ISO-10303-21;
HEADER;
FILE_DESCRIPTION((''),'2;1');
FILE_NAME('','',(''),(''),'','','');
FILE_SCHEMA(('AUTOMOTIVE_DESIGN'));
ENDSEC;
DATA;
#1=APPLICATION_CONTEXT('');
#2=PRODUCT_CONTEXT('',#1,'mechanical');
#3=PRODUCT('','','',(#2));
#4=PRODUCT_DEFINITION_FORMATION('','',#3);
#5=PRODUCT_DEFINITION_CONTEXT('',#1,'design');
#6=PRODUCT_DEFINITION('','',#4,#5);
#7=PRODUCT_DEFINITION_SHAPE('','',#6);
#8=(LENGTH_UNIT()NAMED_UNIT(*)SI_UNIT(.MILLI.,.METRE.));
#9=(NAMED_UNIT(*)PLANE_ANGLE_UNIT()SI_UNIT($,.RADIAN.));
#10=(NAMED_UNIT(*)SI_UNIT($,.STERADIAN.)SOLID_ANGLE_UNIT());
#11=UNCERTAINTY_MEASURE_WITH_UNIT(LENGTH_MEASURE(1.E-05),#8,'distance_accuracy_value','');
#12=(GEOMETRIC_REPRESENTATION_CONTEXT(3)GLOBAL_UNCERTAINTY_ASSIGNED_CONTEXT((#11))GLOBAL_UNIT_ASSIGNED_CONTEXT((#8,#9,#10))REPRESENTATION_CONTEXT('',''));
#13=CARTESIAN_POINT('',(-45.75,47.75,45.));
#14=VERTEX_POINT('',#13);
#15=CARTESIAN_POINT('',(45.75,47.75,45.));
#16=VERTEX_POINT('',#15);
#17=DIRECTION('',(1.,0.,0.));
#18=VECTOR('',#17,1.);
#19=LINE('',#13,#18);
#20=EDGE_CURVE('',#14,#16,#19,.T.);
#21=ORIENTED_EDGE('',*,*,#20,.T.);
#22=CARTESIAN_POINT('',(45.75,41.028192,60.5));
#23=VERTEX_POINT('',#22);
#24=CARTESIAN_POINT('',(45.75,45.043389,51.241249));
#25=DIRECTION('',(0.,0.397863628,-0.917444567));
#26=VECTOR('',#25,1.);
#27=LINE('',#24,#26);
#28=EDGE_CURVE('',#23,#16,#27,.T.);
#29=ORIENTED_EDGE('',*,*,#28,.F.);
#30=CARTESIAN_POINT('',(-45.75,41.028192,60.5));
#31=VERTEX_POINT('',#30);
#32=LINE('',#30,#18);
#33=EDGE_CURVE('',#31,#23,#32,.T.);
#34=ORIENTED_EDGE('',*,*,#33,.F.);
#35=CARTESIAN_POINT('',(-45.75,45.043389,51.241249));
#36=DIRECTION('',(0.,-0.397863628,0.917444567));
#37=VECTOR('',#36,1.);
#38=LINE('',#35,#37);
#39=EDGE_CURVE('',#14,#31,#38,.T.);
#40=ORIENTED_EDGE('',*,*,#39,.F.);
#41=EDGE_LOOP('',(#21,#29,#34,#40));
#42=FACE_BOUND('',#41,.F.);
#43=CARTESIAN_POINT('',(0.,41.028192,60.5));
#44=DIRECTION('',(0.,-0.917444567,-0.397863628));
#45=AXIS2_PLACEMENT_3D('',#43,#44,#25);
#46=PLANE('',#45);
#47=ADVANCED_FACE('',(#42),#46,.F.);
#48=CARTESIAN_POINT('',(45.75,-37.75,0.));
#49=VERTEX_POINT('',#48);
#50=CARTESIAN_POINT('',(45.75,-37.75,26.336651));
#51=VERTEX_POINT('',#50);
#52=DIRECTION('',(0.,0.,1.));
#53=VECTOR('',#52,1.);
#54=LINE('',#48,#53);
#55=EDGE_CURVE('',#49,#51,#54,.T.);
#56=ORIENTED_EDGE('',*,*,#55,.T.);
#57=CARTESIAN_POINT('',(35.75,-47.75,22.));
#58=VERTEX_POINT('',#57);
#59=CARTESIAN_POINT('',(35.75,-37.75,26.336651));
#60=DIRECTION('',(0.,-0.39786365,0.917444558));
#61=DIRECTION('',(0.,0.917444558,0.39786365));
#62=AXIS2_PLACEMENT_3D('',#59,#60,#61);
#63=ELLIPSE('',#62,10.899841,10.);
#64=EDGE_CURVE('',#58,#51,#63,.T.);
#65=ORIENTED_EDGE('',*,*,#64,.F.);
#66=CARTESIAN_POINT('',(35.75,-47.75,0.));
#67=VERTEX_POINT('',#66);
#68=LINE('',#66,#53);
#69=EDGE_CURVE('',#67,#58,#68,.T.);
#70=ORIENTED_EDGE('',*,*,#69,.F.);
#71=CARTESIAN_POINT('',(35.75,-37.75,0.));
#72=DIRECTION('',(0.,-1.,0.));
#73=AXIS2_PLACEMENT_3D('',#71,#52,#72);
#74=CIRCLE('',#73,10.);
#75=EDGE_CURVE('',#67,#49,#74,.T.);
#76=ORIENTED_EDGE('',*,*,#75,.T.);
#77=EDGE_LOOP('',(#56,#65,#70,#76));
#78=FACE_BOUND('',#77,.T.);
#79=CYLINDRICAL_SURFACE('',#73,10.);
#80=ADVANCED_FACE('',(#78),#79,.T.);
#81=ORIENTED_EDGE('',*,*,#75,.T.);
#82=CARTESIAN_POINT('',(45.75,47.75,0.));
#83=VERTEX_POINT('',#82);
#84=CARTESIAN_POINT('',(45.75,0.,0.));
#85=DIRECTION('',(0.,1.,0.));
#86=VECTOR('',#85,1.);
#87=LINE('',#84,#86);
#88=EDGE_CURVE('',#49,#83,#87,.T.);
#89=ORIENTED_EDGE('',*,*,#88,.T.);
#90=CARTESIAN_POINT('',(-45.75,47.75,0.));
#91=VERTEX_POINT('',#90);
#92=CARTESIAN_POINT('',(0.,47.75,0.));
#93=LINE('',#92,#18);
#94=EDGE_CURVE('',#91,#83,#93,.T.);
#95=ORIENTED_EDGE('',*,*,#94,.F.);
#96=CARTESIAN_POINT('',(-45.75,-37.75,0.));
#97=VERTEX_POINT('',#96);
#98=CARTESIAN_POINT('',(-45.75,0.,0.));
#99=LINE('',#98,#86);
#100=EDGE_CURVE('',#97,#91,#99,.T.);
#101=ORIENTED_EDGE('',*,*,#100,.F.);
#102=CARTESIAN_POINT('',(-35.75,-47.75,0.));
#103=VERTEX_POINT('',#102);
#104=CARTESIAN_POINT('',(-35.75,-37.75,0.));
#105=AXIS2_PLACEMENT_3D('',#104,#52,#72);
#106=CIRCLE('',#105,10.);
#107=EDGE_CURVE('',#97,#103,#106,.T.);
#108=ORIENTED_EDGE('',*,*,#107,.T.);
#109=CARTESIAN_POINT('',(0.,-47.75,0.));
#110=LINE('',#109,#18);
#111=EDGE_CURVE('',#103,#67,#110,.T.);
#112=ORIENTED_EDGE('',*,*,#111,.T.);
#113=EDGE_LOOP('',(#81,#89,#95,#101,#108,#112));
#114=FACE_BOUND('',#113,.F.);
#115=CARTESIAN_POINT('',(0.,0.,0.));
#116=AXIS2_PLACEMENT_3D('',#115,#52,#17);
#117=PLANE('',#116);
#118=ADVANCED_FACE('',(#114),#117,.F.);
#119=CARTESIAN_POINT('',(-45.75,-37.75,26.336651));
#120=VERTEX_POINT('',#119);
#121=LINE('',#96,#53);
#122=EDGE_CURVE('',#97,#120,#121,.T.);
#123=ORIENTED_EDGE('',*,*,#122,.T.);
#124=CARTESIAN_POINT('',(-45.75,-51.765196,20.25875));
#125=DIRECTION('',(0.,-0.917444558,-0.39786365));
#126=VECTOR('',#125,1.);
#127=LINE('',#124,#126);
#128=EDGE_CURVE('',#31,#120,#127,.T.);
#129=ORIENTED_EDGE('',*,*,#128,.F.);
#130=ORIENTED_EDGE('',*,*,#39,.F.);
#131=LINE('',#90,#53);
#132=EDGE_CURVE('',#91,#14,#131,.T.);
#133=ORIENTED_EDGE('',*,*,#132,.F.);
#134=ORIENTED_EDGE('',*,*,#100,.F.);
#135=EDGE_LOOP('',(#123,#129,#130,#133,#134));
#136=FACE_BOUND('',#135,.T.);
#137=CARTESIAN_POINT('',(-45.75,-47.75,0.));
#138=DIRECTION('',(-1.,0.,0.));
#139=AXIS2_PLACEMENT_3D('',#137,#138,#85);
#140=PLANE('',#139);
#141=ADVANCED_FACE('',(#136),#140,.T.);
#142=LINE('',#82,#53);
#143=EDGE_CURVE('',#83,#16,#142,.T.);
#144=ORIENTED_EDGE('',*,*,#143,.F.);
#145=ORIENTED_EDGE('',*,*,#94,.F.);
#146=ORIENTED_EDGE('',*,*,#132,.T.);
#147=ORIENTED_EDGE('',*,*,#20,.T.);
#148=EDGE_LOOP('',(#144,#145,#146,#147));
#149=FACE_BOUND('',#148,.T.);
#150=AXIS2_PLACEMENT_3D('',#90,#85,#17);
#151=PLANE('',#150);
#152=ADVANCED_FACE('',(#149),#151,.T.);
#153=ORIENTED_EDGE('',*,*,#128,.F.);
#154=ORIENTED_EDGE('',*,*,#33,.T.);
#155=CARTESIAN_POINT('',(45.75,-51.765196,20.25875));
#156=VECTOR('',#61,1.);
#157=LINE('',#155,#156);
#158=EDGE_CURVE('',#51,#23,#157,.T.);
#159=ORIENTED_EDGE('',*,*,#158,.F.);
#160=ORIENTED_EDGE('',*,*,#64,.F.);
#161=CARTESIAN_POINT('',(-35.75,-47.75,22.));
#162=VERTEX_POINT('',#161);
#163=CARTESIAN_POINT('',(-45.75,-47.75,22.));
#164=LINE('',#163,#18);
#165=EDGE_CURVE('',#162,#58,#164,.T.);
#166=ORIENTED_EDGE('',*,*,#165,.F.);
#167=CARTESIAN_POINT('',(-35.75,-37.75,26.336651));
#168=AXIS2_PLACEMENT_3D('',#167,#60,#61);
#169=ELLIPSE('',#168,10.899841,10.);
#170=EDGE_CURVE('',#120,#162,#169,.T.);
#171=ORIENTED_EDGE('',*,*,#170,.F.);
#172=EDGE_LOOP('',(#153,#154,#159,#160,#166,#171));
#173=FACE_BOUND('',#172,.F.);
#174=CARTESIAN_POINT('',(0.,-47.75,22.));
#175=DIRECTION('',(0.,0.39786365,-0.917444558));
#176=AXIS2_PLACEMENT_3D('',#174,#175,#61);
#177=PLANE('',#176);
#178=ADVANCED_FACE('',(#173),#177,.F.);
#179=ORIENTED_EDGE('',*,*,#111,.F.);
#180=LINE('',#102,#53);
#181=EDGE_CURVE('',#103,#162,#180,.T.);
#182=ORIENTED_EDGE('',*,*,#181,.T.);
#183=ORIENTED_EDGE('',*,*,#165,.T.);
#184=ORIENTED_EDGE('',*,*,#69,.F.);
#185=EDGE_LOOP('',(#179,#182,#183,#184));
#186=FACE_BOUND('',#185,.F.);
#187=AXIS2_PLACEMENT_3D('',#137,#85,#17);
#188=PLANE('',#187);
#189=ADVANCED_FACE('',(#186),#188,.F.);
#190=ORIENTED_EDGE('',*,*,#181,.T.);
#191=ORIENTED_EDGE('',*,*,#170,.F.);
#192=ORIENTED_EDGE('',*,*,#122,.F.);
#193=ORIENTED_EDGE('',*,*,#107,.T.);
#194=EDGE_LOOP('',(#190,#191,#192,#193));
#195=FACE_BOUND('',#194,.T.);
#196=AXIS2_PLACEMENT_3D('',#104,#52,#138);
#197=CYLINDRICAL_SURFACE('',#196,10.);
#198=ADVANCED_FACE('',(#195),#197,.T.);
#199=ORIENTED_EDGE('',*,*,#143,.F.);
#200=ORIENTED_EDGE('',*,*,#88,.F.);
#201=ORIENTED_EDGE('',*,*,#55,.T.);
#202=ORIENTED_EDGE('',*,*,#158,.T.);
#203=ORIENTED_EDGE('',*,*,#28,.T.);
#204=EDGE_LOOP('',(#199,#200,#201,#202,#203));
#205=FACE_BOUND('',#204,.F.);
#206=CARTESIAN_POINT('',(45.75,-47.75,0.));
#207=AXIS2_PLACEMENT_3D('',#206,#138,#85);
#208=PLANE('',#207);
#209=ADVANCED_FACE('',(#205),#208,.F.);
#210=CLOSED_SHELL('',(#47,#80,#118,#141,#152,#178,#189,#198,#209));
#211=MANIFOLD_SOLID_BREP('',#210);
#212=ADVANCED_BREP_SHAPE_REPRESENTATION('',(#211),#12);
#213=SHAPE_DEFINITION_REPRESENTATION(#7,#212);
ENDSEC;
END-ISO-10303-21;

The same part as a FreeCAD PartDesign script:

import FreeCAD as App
import Part
import Sketcher

V = App.Vector
Q = App.Units.Quantity


def edges_at(feature, points):
    """Names of the edges that pass closest to the given points."""
    edges = feature.Shape.Edges
    near = lambda p: min(range(len(edges)), key=lambda i: edges[i].distToShape(Part.Vertex(*p))[0])
    return sorted({f"Edge{near(p) + 1}" for p in points})


def add_polygon(sketch, points):
    """Adds a closed chain of lines whose ends are joined by coincident constraints."""
    first, n = sketch.GeometryCount, len(points)
    for a, b in zip(points, points[1:] + points[:1]):
        sketch.addGeometry(Part.LineSegment(App.Vector(*a, 0), App.Vector(*b, 0)), False)
    for i in range(n):
        sketch.addConstraint(Sketcher.Constraint("Coincident", first + i, 2, first + (i + 1) % n, 1))

doc = App.newDocument("Part")
body = doc.addObject("PartDesign::Body", "Body")

# Sketch on XY plane
sketch1 = body.newObject("Sketcher::SketchObject", "Sketch")
sketch1.AttachmentSupport = (doc.getObject("XY_Plane"), [""])
sketch1.MapMode = "FlatFace"
add_polygon(sketch1, [(-46, 48), (-46, -48), (46, -48), (46, 48)])  # lines 0-3
sketch1.addConstraint([
    Sketcher.Constraint("Vertical", 0),
    Sketcher.Constraint("Horizontal", 1),
    Sketcher.Constraint("Vertical", 2),
    Sketcher.Constraint("Horizontal", 3),
    Sketcher.Constraint("Symmetric", 0, 2, 2, 2, -1, 1),
    Sketcher.Constraint("DistanceX", 1, 1, 1, 2, Q("91.5 mm")),
    Sketcher.Constraint("DistanceY", 0, 2, 0, 1, Q("95.5 mm")),
])
pad1 = body.newObject("PartDesign::Pad", "Pad")
pad1.Profile = sketch1
pad1.Length = 60.5

# Sketch on YZ plane
sketch2 = body.newObject("Sketcher::SketchObject", "Sketch001")
sketch2.AttachmentSupport = (doc.getObject("YZ_Plane"), [""])
sketch2.MapMode = "FlatFace"
add_polygon(sketch2, [(-48, 22), (41, 60), (48, 45), (58, 45), (58, 70), (-58, 70), (-58, 22)])  # lines 0-6
sketch2.addConstraint([
    Sketcher.Constraint("Horizontal", 2),
    Sketcher.Constraint("Vertical", 3),
    Sketcher.Constraint("Horizontal", 4),
    Sketcher.Constraint("Vertical", 5),
    Sketcher.Constraint("Horizontal", 6),
    Sketcher.Constraint("Perpendicular", 0, 1),
    Sketcher.Constraint("Equal", 2, 6),
    Sketcher.Constraint("DistanceX", 2, 1, 2, 2, Q("10 mm")),
    Sketcher.Constraint("DistanceX", 4, 2, 4, 1, Q("115.5 mm")),
    Sketcher.Constraint("DistanceY", 3, 1, 3, 2, Q("25.5 mm")),
    Sketcher.Constraint("DistanceY", 5, 2, 5, 1, Q("48.5 mm")),
    Sketcher.Constraint("DistanceY", -1, 1, 1, 2, Q("45 mm")),
    Sketcher.Constraint("DistanceY", 0, 2, 3, 2, Q("10 mm")),
    Sketcher.Constraint("DistanceX", -1, 1, 1, 2, Q("47.75 mm")),
])
pocket1 = body.newObject("PartDesign::Pocket", "Pocket")
pocket1.Profile = sketch2
pocket1.Type = "ThroughAll"
pocket1.Midplane = True
doc.recompute()

fillet = body.newObject("PartDesign::Fillet", "Fillet")
fillet.Base = (pocket1, edges_at(pocket1, [(45.75, -47.75, 11), (-45.75, -47.75, 11)]))
fillet.Radius = 10

doc.recompute()
